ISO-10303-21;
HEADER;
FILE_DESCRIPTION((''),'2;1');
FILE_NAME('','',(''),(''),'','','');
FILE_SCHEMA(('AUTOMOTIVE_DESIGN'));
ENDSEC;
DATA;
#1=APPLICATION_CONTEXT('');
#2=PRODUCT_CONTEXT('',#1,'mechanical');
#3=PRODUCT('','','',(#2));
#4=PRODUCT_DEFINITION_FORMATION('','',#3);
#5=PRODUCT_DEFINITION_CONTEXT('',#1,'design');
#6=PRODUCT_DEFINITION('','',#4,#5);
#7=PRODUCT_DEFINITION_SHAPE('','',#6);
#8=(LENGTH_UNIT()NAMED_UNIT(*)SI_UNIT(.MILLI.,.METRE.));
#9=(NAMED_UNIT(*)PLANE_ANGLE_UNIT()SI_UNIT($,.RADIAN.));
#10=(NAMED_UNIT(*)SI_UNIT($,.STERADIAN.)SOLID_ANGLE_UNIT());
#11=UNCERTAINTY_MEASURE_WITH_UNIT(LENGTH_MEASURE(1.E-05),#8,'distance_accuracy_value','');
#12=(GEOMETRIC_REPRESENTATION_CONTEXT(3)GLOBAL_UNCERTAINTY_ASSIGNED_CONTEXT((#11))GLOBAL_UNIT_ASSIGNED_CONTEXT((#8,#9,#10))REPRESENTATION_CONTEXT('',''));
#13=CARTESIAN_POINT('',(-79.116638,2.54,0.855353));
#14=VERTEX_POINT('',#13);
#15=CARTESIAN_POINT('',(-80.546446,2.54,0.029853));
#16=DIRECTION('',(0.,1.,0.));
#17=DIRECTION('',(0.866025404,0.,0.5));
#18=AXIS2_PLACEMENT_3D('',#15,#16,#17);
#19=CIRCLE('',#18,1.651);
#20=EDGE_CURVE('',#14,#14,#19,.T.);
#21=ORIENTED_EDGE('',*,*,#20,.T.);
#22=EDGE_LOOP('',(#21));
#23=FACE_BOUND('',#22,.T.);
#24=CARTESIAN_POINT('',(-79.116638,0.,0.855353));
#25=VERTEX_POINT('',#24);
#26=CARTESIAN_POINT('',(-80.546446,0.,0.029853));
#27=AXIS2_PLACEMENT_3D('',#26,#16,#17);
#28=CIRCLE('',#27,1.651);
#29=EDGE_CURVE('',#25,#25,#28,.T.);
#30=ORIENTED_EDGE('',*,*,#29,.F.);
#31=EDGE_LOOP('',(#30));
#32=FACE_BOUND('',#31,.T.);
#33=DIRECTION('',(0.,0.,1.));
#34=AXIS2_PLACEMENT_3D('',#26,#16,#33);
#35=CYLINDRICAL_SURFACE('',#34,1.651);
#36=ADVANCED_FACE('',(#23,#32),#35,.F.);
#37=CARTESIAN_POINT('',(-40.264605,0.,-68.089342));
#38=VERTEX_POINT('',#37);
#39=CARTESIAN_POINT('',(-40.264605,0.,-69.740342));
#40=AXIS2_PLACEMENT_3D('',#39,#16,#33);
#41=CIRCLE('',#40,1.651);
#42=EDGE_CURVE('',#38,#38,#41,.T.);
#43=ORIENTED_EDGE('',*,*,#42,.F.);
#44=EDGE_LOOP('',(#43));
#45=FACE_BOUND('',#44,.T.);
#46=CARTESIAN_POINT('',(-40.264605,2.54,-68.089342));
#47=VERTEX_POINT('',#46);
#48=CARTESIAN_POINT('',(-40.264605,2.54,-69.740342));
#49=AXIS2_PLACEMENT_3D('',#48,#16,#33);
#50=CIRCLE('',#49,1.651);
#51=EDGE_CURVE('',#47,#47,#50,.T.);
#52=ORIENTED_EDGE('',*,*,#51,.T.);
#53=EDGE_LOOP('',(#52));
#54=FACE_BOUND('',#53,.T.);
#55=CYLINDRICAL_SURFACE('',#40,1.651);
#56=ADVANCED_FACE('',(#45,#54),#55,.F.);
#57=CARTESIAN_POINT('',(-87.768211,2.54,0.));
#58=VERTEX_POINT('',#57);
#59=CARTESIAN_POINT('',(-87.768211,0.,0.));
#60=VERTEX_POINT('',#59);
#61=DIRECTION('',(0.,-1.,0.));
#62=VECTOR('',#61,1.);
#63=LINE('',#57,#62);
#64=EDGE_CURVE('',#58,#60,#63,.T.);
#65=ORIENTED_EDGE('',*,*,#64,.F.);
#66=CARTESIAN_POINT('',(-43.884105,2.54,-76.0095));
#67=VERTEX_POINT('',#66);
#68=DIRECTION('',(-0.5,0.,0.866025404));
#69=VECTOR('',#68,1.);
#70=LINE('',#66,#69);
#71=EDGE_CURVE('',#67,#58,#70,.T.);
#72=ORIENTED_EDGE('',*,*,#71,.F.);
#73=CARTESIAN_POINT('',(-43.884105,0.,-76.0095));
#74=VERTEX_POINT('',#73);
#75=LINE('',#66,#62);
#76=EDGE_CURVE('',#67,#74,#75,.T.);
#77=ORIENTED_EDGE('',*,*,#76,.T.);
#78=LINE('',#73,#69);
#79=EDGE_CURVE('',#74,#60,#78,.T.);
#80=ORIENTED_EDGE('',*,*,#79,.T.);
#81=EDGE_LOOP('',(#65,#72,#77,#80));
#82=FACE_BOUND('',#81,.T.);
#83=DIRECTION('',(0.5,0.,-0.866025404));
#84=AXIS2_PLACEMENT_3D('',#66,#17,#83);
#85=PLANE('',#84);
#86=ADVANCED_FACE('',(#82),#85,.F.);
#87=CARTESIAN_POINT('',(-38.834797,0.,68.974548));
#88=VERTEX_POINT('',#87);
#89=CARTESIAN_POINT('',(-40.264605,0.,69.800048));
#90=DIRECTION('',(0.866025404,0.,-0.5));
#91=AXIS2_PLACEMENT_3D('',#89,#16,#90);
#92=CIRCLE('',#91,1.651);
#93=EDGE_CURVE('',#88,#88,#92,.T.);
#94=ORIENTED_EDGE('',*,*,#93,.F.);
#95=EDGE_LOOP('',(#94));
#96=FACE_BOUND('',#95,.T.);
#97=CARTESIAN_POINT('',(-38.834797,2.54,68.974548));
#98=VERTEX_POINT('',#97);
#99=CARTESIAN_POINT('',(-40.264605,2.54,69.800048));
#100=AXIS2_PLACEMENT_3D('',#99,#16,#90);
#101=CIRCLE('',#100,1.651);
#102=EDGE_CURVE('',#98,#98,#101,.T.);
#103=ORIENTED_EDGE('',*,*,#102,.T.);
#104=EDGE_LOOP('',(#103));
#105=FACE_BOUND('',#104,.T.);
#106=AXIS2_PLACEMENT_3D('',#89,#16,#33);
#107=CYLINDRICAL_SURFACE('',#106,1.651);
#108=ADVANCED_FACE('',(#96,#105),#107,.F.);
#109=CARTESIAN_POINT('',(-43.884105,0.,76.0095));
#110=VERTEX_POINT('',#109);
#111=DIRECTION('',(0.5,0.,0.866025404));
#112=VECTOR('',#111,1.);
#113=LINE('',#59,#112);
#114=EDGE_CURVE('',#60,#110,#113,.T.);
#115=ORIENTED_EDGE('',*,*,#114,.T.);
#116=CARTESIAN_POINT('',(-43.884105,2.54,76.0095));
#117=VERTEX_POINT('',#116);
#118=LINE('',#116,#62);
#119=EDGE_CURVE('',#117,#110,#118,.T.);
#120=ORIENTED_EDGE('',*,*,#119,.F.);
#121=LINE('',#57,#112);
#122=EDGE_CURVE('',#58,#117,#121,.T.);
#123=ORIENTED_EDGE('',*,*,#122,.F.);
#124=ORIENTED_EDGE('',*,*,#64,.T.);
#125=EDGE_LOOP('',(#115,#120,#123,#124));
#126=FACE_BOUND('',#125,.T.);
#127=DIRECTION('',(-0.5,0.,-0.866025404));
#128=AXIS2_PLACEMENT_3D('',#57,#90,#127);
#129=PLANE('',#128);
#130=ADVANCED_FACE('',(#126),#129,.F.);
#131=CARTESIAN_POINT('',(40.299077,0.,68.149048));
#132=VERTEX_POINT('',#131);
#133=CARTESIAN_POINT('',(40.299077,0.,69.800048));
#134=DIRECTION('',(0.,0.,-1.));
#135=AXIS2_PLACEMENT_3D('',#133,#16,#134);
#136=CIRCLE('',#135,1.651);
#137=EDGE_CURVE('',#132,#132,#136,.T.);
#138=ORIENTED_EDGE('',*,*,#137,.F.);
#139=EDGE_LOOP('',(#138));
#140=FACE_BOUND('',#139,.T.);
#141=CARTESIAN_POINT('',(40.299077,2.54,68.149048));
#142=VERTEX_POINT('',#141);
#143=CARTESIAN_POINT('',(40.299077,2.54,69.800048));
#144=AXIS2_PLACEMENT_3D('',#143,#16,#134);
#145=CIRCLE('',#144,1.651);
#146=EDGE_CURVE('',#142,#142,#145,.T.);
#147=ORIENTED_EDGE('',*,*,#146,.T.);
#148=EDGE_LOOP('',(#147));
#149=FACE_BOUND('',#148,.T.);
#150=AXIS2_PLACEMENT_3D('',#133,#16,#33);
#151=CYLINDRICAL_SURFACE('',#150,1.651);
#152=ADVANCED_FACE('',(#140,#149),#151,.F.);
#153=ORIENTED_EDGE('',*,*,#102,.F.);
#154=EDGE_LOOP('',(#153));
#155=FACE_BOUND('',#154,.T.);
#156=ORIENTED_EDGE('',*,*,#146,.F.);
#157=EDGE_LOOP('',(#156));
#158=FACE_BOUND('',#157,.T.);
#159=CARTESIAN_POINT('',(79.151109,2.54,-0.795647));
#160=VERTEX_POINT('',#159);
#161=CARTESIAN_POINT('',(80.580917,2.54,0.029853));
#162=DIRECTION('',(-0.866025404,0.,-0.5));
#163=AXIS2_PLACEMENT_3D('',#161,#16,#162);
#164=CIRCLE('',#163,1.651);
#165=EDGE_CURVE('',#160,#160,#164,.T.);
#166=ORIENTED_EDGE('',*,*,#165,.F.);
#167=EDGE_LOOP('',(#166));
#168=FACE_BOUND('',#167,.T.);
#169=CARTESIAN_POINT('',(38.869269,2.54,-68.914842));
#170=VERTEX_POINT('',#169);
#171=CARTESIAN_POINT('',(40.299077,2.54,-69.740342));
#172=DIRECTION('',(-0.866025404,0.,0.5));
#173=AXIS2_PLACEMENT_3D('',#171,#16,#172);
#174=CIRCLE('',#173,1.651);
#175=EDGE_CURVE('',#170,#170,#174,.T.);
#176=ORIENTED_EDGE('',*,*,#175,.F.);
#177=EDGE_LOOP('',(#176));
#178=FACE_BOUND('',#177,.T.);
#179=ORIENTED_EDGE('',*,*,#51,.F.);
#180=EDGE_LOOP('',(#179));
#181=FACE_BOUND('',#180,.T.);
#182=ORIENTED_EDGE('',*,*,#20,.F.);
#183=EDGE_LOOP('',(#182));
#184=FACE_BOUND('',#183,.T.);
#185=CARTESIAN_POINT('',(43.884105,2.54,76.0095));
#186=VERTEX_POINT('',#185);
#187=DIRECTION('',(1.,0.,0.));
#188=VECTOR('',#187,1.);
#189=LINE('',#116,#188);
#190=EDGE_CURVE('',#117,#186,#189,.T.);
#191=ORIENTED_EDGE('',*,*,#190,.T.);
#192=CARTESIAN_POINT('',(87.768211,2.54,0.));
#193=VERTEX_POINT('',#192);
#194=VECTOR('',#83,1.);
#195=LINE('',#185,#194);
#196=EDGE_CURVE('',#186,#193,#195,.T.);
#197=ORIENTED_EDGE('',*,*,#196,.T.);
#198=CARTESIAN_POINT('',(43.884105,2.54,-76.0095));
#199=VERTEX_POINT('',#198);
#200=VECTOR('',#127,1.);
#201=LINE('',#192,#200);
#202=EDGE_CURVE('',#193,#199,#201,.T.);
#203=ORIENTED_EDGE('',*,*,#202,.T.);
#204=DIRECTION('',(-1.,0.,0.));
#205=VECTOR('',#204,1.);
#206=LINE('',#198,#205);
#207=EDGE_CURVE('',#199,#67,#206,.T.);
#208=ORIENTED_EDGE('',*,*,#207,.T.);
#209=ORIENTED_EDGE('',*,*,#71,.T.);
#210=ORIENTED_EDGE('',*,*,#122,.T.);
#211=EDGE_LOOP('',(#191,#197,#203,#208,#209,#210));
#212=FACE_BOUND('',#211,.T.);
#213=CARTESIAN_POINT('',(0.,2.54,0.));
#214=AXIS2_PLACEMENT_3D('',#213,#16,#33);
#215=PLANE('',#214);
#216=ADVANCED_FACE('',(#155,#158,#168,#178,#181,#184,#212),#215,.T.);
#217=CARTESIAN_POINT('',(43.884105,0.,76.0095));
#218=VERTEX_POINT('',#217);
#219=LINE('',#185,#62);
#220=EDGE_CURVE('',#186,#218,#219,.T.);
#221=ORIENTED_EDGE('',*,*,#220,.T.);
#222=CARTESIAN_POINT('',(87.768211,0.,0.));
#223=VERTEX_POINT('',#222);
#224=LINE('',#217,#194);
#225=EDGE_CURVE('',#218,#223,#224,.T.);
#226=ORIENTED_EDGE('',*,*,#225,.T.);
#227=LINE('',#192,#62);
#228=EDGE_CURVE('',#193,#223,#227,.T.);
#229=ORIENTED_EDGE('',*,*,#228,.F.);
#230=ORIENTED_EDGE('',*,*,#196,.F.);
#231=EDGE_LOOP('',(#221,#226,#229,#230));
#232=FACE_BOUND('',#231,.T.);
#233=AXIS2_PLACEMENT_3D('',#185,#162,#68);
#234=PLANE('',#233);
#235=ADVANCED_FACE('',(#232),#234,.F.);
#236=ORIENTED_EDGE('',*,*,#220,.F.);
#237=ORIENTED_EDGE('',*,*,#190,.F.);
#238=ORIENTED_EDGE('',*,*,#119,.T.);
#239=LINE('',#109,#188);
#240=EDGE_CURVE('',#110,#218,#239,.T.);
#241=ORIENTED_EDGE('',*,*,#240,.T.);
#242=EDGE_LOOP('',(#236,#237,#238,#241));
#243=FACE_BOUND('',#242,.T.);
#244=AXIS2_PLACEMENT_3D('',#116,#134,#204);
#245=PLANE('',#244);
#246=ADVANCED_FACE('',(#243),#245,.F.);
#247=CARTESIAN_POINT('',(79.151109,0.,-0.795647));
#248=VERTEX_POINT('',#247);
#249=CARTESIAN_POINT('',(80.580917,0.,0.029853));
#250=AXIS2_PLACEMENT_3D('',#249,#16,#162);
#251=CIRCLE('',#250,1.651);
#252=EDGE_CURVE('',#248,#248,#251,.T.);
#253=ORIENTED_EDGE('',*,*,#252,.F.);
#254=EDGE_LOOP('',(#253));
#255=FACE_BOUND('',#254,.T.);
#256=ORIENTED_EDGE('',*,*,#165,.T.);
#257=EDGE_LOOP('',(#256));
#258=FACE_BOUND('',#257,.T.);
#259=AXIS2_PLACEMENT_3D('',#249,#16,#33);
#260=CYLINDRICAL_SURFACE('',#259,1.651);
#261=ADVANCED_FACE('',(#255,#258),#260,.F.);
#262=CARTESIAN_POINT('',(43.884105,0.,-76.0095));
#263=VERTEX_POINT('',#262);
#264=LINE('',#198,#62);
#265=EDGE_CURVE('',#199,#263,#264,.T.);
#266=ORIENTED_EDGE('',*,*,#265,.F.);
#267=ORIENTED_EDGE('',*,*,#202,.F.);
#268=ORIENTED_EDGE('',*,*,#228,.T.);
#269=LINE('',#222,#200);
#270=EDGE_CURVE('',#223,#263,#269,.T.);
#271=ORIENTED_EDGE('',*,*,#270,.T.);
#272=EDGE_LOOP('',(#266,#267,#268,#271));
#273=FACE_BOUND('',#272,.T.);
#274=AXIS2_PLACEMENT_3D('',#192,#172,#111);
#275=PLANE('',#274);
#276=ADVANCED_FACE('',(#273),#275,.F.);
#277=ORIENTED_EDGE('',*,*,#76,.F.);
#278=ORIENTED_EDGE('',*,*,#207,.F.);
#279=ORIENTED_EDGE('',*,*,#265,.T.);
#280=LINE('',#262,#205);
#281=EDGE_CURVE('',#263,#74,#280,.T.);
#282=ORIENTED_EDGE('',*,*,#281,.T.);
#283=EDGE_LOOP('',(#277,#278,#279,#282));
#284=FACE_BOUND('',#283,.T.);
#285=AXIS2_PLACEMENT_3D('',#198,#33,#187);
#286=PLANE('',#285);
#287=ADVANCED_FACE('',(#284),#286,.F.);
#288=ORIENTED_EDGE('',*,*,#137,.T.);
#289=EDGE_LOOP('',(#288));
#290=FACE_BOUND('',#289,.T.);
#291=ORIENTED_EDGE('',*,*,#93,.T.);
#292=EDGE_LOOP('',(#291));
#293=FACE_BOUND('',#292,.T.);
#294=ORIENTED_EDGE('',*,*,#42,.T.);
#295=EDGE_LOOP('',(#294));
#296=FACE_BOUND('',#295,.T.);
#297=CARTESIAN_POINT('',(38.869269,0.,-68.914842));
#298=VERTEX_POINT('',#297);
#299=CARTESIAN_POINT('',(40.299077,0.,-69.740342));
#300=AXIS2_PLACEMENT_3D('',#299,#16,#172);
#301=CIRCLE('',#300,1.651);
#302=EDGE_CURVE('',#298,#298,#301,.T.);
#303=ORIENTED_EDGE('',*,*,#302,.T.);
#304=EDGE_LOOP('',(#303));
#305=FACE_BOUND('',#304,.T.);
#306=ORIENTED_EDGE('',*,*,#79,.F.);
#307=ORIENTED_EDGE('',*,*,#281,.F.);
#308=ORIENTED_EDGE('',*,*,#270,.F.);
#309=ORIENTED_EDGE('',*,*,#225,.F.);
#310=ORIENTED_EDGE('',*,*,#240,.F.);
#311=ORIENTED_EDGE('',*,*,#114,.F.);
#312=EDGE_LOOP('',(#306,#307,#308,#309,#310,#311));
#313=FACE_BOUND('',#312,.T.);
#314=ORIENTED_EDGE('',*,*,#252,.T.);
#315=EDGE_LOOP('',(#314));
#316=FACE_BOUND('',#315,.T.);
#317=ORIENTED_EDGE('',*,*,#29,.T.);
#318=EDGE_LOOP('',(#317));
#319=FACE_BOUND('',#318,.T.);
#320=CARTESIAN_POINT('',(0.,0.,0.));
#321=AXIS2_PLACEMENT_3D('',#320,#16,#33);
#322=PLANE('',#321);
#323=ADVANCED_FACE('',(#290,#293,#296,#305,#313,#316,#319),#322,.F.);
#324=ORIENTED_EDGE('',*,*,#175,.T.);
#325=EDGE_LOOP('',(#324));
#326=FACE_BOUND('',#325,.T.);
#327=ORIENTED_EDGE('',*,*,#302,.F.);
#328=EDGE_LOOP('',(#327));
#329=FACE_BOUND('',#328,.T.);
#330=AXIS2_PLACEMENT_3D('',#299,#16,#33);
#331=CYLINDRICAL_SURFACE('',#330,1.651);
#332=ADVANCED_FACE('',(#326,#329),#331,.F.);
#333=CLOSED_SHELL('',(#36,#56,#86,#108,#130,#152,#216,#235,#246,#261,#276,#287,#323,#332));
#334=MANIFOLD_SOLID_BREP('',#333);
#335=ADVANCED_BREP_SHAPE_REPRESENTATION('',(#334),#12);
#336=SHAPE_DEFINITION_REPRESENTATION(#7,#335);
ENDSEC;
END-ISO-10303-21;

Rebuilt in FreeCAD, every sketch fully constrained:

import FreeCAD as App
import Part
import Sketcher
from FreeCAD import Vector
Q = App.Units.Quantity

doc = App.newDocument("Part")
body = doc.addObject("PartDesign::Body", "Body")

sketch1 = body.newObject("Sketcher::SketchObject", "Sketch")
sketch1.AttachmentSupport = (doc.getObject("XZ_Plane"), [""])
sketch1.MapMode = "FlatFace"
sketch1.addGeometry(Part.LineSegment(Vector(44, 76, 0), Vector(88, 0, 0)), False)
sketch1.addGeometry(Part.LineSegment(Vector(88, 0, 0), Vector(44, -76, 0)), False)
sketch1.addGeometry(Part.LineSegment(Vector(44, -76, 0), Vector(-44, -76, 0)), False)
sketch1.addGeometry(Part.LineSegment(Vector(-44, -76, 0), Vector(-88, 0, 0)), False)
sketch1.addGeometry(Part.LineSegment(Vector(-88, 0, 0), Vector(-44, 76, 0)), False)
sketch1.addGeometry(Part.LineSegment(Vector(-44, 76, 0), Vector(44, 76, 0)), False)
sketch1.addConstraint(Sketcher.Constraint("Coincident", 0, 2, 1, 1))
sketch1.addConstraint(Sketcher.Constraint("Coincident", 1, 2, 2, 1))
sketch1.addConstraint(Sketcher.Constraint("Coincident", 2, 2, 3, 1))
sketch1.addConstraint(Sketcher.Constraint("Coincident", 3, 2, 4, 1))
sketch1.addConstraint(Sketcher.Constraint("Coincident", 4, 2, 5, 1))
sketch1.addConstraint(Sketcher.Constraint("Coincident", 5, 2, 0, 1))
sketch1.addConstraint(Sketcher.Constraint("Horizontal", 2))
sketch1.addConstraint(Sketcher.Constraint("Horizontal", 5))
sketch1.addConstraint(Sketcher.Constraint("Symmetric", 0, 2, 3, 2, -1, 1))
sketch1.addConstraint(Sketcher.Constraint("Symmetric", 1, 2, 4, 2, -1, 1))
sketch1.addConstraint(Sketcher.Constraint("PointOnObject", 0, 2, -1))
sketch1.addConstraint(Sketcher.Constraint("Parallel", 0, 3))
sketch1.addConstraint(Sketcher.Constraint("Vertical", 2, 2, 4, 2))
sketch1.addConstraint(Sketcher.Constraint("Angle", 0, Q("-60 deg")))
sketch1.addConstraint(Sketcher.Constraint("DistanceY", 2, 2, 4, 2, Q("5.985 in")))
sketch1.addConstraint(Sketcher.Constraint("DistanceX", 2, 2, 2, 1, 87.768211))
pad1 = body.newObject("PartDesign::Pad", "Pad")
pad1.Profile = sketch1
pad1.Length = Q("0.1 in")
pad1.Reversed = True

sketch2 = body.newObject("Sketcher::SketchObject", "Sketch001")
sketch2.AttachmentSupport = (doc.getObject("XZ_Plane"), [""])
sketch2.MapMode = "FlatFace"
sketch2.AttachmentOffset = App.Placement(Vector(0, 0, -0.1 * 25.4), App.Rotation())
sketch2.addGeometry(Part.Circle(Vector(-40.3, -69.7, 0), Vector(0, 0, 1), 1.7), False)
sketch2.addConstraint(Sketcher.Constraint("Diameter", 0, Q("0.13 in")))
sketch2.addConstraint(Sketcher.Constraint("DistanceX", 0, 3, -1, 1, 40.264605))
sketch2.addConstraint(Sketcher.Constraint("DistanceY", 0, 3, -1, 1, 69.740342))
pocket1 = body.newObject("PartDesign::Pocket", "Pocket")
pocket1.Profile = sketch2
pocket1.Type = "ThroughAll"
pocket1.Reversed = True
doc.recompute()

datumline = body.newObject("PartDesign::Line", "DatumLine")
datumline.Placement = App.Placement(Vector(0.017236, 0, 0.029853), App.Rotation(Vector(0, 0, 1), Vector(0, 1, 0)))
polarpattern = body.newObject("PartDesign::PolarPattern", "PolarPattern")
polarpattern.Originals = [pocket1]
polarpattern.Axis = (datumline, [""])
polarpattern.Angle = 360
polarpattern.Occurrences = 6
body.Tip = polarpattern

doc.recompute()
